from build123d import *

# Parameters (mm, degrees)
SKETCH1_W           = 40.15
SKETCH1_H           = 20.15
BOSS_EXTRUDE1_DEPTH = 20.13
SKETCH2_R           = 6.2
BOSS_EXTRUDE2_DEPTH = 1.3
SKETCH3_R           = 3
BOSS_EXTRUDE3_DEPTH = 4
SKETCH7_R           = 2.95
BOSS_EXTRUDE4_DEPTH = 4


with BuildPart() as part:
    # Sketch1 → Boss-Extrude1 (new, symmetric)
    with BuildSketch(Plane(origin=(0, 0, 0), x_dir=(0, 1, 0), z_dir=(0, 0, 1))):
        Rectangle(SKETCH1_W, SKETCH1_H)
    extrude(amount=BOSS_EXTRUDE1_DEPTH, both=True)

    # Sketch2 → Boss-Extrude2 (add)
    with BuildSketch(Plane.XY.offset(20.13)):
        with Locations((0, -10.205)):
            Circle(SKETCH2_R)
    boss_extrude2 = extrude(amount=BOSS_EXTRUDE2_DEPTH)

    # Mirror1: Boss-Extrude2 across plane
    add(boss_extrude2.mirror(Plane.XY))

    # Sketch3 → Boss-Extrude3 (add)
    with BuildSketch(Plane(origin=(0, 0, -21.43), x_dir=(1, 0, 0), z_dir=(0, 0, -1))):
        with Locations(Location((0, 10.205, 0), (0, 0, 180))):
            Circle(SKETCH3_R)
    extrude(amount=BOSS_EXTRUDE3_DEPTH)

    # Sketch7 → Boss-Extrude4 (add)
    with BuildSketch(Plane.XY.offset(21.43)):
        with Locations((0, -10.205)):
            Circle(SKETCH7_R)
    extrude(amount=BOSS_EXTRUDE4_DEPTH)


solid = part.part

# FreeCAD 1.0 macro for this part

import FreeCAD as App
import Part
import Sketcher
from FreeCAD import Vector


def add_polygon(sketch, points):
    """Adds a closed chain of lines whose ends are joined by coincident constraints."""
    first, n = sketch.GeometryCount, len(points)
    for a, b in zip(points, points[1:] + points[:1]):
        sketch.addGeometry(Part.LineSegment(App.Vector(*a, 0), App.Vector(*b, 0)), False)
    for i in range(n):
        sketch.addConstraint(Sketcher.Constraint("Coincident", first + i, 2, first + (i + 1) % n, 1))

doc = App.newDocument("Part")
params = doc.addObject("Spreadsheet::Sheet", "Params")
for row, (alias, value) in enumerate([
    ("sketch1_width", "20.15 mm"),
    ("sketch1_height", "40.15 mm"),
    ("pad1_length", "40.26 mm"),
    ("sketch2_diameter", "12.4 mm"),
    ("pad2_length", "1.3 mm"),
    ("sketch3_diameter", "6 mm"),
    ("pad3_length", "4 mm"),
    ("sketch4_diameter", "5.9 mm"),
    ("pad4_length", "4 mm"),
], start=1):
    params.set(f"A{row}", alias)
    params.set(f"B{row}", "=" + value)
    params.setAlias(f"B{row}", alias)

body = doc.addObject("PartDesign::Body", "Body")

# Sketch on XY plane
sketch1 = body.newObject("Sketcher::SketchObject", "Sketch")
sketch1.AttachmentSupport = (doc.getObject("XY_Plane"), [""])
sketch1.MapMode = "FlatFace"
add_polygon(sketch1, [(-10, -20), (10, -20), (10, 20), (-10, 20)])  # lines 0-3
sketch1.addConstraint([
    Sketcher.Constraint("Horizontal", 0),
    Sketcher.Constraint("Vertical", 1),
    Sketcher.Constraint("Horizontal", 2),
    Sketcher.Constraint("Vertical", 3),
    Sketcher.Constraint("Symmetric", 0, 2, 2, 2, -1, 1),
    Sketcher.Constraint("DistanceX", 0, 1, 0, 2, 20.15),
    Sketcher.Constraint("DistanceY", 1, 1, 1, 2, 40.15),
])
sketch1.setExpression("Constraints[9]", "Params.sketch1_width")
sketch1.setExpression("Constraints[10]", "Params.sketch1_height")
pad1 = body.newObject("PartDesign::Pad", "Pad")
pad1.Profile = sketch1
pad1.setExpression("Length", "Params.pad1_length")
pad1.Midplane = True

# Sketch on XY plane
sketch2 = body.newObject("Sketcher::SketchObject", "Sketch001")
sketch2.AttachmentSupport = (doc.getObject("XY_Plane"), [""])
sketch2.MapMode = "FlatFace"
sketch2.AttachmentOffset = App.Placement(Vector(0, 0, 20.13), App.Rotation())
sketch2.addGeometry(Part.Circle(Vector(0, -10, 0), Vector(0, 0, 1), 6), False)
sketch2.addConstraint([
    Sketcher.Constraint("PointOnObject", 0, 3, -2),
    Sketcher.Constraint("Diameter", 0, 12.4),
    Sketcher.Constraint("DistanceY", 0, 3, -1, 1, 10.205),
])
sketch2.setExpression("Constraints[1]", "Params.sketch2_diameter")
pad2 = body.newObject("PartDesign::Pad", "Pad001")
pad2.Profile = sketch2
pad2.setExpression("Length", "Params.pad2_length")
doc.recompute()

mirrored = body.newObject("PartDesign::Mirrored", "Mirrored")
mirrored.Originals = [pad2]
mirrored.MirrorPlane = (doc.getObject("XY_Plane"), [""])
body.Tip = mirrored

# Sketch on XY plane
sketch3 = body.newObject("Sketcher::SketchObject", "Sketch002")
sketch3.AttachmentSupport = (doc.getObject("XY_Plane"), [""])
sketch3.MapMode = "FlatFace"
sketch3.AttachmentOffset = App.Placement(Vector(0, 0, -21.43), App.Rotation())
sketch3.addGeometry(Part.Circle(Vector(0, -10.2, 0), Vector(0, 0, 1), 3), False)
sketch3.addConstraint([
    Sketcher.Constraint("PointOnObject", 0, 3, -2),
    Sketcher.Constraint("Diameter", 0, 6.0),
    Sketcher.Constraint("DistanceY", 0, 3, -1, 1, 10.205),
])
sketch3.setExpression("Constraints[1]", "Params.sketch3_diameter")
pad3 = body.newObject("PartDesign::Pad", "Pad002")
pad3.Profile = sketch3
pad3.setExpression("Length", "Params.pad3_length")
pad3.Reversed = True

# Sketch on XY plane
sketch4 = body.newObject("Sketcher::SketchObject", "Sketch003")
sketch4.AttachmentSupport = (doc.getObject("XY_Plane"), [""])
sketch4.MapMode = "FlatFace"
sketch4.AttachmentOffset = App.Placement(Vector(0, 0, 21.43), App.Rotation())
sketch4.addGeometry(Part.Circle(Vector(0, -10.2, 0), Vector(0, 0, 1), 3), False)
sketch4.addConstraint([
    Sketcher.Constraint("PointOnObject", 0, 3, -2),
    Sketcher.Constraint("Diameter", 0, 5.9),
    Sketcher.Constraint("DistanceY", 0, 3, -1, 1, 10.205),
])
sketch4.setExpression("Constraints[1]", "Params.sketch4_diameter")
pad4 = body.newObject("PartDesign::Pad", "Pad003")
pad4.Profile = sketch4
pad4.setExpression("Length", "Params.pad4_length")

doc.recompute()
